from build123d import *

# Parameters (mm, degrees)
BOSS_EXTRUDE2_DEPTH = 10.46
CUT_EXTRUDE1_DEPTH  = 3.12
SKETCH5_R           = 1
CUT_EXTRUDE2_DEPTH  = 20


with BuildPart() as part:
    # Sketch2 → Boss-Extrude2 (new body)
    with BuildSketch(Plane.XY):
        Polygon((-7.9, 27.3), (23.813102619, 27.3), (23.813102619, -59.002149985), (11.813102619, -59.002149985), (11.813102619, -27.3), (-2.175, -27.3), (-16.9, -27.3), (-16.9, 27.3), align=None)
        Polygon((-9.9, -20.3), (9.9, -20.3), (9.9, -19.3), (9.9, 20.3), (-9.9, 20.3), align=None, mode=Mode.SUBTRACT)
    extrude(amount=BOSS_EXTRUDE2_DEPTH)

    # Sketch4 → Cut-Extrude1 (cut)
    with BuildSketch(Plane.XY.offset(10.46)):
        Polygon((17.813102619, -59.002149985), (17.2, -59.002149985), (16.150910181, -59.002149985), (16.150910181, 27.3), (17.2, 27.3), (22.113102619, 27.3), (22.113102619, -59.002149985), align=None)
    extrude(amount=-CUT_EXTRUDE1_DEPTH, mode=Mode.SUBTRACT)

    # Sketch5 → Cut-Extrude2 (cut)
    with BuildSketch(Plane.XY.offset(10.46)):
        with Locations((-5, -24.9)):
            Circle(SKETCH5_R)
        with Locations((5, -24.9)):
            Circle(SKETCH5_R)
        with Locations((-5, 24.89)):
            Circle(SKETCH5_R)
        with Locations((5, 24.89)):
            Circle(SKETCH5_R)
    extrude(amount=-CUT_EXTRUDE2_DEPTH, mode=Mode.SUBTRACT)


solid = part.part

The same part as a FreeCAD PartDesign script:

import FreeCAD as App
import Part
import Sketcher
from FreeCAD import Vector


def add_polygon(sketch, points):
    """Adds a closed chain of lines whose ends are joined by coincident constraints."""
    first, n = sketch.GeometryCount, len(points)
    for a, b in zip(points, points[1:] + points[:1]):
        sketch.addGeometry(Part.LineSegment(App.Vector(*a, 0), App.Vector(*b, 0)), False)
    for i in range(n):
        sketch.addConstraint(Sketcher.Constraint("Coincident", first + i, 2, first + (i + 1) % n, 1))

doc = App.newDocument("Part")
body = doc.addObject("PartDesign::Body", "Body")

# Sketch on XY plane
sketch1 = doc.addObject("Sketcher::SketchObject", "Sketch")
body.addObject(sketch1)
sketch1.AttachmentSupport = (doc.XY_Plane, [""])
sketch1.MapMode = "FlatFace"
add_polygon(sketch1, [(24, 27), (-17, 27), (-17, -27), (12, -27), (12, -59), (24, -59)])  # lines 0-5
add_polygon(sketch1, [(-10, -20), (-10, 20), (10, 20), (10, -20)])  # lines 6-9
sketch1.addConstraint([
    Sketcher.Constraint("Horizontal", 0),
    Sketcher.Constraint("Vertical", 1),
    Sketcher.Constraint("Horizontal", 2),
    Sketcher.Constraint("Vertical", 3),
    Sketcher.Constraint("Horizontal", 4),
    Sketcher.Constraint("Vertical", 5),
    Sketcher.Constraint("Vertical", 6),
    Sketcher.Constraint("Horizontal", 7),
    Sketcher.Constraint("Vertical", 8),
    Sketcher.Constraint("Horizontal", 9),
    Sketcher.Constraint("Symmetric", 6, 2, 8, 2, -1, 1),
    Sketcher.Constraint("DistanceX", 4, 1, 4, 2, 12.0),
    Sketcher.Constraint("DistanceX", 7, 1, 7, 2, 19.8),
    Sketcher.Constraint("DistanceY", 1, 2, 1, 1, 54.6),
    Sketcher.Constraint("DistanceY", 6, 1, 6, 2, 40.6),
    Sketcher.Constraint("DistanceX", 0, 2, 6, 2, 7.0),
    Sketcher.Constraint("DistanceY", 6, 2, 0, 2, 7.0),
    Sketcher.Constraint("DistanceY", 3, 2, 3, 1, 31.70215),
    Sketcher.Constraint("DistanceX", 0, 2, 0, 1, 40.713103),
])
pad1 = doc.addObject("PartDesign::Pad", "Pad")
body.addObject(pad1)
pad1.Profile = sketch1
pad1.Length = 10.46

# Sketch on XY plane
sketch2 = doc.addObject("Sketcher::SketchObject", "Sketch001")
body.addObject(sketch2)
sketch2.AttachmentSupport = (doc.XY_Plane, [""])
sketch2.MapMode = "FlatFace"
sketch2.AttachmentOffset = App.Placement(Vector(0, 0, 10.46), App.Rotation())
add_polygon(sketch2, [(16, -59), (22, -59), (22, 27), (16, 27)])  # lines 0-3
sketch2.addConstraint([
    Sketcher.Constraint("Horizontal", 0),
    Sketcher.Constraint("Vertical", 1),
    Sketcher.Constraint("Horizontal", 2),
    Sketcher.Constraint("Vertical", 3),
    Sketcher.Constraint("DistanceY", -1, 1, 1, 2, 27.3),
    Sketcher.Constraint("DistanceY", 1, 1, 1, 2, 86.30215),
    Sketcher.Constraint("DistanceX", 0, 1, 0, 2, 5.962192),
    Sketcher.Constraint("DistanceX", -1, 1, 2, 2, 16.15091),
])
pocket1 = doc.addObject("PartDesign::Pocket", "Pocket")
body.addObject(pocket1)
pocket1.Profile = sketch2
pocket1.Length = 3.12

# Sketch on XY plane
sketch3 = doc.addObject("Sketcher::SketchObject", "Sketch002")
body.addObject(sketch3)
sketch3.AttachmentSupport = (doc.XY_Plane, [""])
sketch3.MapMode = "FlatFace"
sketch3.AttachmentOffset = App.Placement(Vector(0, 0, 10.46), App.Rotation())
sketch3.addGeometry([
    Part.Circle(Vector(-5, -24.9, 0), Vector(0, 0, 1), 1),
    Part.Circle(Vector(5, -24.9, 0), Vector(0, 0, 1), 1),
    Part.Circle(Vector(-5, 24.9, 0), Vector(0, 0, 1), 1),
    Part.Circle(Vector(5, 24.9, 0), Vector(0, 0, 1), 1),
], False)
sketch3.addConstraint([
    Sketcher.Constraint("Equal", 0, 1),
    Sketcher.Constraint("Equal", 1, 2),
    Sketcher.Constraint("Equal", 2, 3),
    Sketcher.Constraint("Symmetric", 0, 3, 1, 3, -2),
    Sketcher.Constraint("Symmetric", 2, 3, 3, 3, -2),
    Sketcher.Constraint("Vertical", 0, 3, 2, 3),
    Sketcher.Constraint("Diameter", 0, 2.0),
    Sketcher.Constraint("DistanceX", 0, 3, -1, 1, 5.0),
    Sketcher.Constraint("DistanceY", 0, 3, -1, 1, 24.9),
    Sketcher.Constraint("DistanceY", -1, 1, 2, 3, 24.89),
])
pocket2 = doc.addObject("PartDesign::Pocket", "Pocket001")
body.addObject(pocket2)
pocket2.Profile = sketch3
pocket2.Length = 20

doc.recompute()
